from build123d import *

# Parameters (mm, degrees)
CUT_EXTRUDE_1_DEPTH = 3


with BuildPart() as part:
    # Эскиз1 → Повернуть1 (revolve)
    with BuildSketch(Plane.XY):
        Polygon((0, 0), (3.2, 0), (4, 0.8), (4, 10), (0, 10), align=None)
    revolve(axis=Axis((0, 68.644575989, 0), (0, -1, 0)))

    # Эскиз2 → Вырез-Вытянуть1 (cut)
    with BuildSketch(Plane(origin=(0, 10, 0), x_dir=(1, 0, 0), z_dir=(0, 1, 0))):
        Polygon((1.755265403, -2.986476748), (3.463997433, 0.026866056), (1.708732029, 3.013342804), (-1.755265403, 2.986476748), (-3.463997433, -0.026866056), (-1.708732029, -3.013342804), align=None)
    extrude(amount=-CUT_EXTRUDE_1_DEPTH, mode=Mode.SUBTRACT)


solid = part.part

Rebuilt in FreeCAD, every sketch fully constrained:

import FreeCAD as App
import Part
import Sketcher
from FreeCAD import Vector
Q = App.Units.Quantity


def add_polygon(sketch, points):
    """Adds a closed chain of lines whose ends are joined by coincident constraints."""
    first, n = sketch.GeometryCount, len(points)
    for a, b in zip(points, points[1:] + points[:1]):
        sketch.addGeometry(Part.LineSegment(App.Vector(*a, 0), App.Vector(*b, 0)), False)
    for i in range(n):
        sketch.addConstraint(Sketcher.Constraint("Coincident", first + i, 2, first + (i + 1) % n, 1))

doc = App.newDocument("Part")
body = doc.addObject("PartDesign::Body", "Body")

sketch1 = body.newObject("Sketcher::SketchObject", "Sketch")
sketch1.AttachmentSupport = (doc.getObject("XY_Plane"), [""])
sketch1.MapMode = "FlatFace"
add_polygon(sketch1, [(0, 0), (3.2, 0), (4, 0.8), (4, 10), (0, 10)])
sketch1.addConstraint(Sketcher.Constraint("Horizontal", 0))
sketch1.addConstraint(Sketcher.Constraint("Vertical", 2))
sketch1.addConstraint(Sketcher.Constraint("Horizontal", 3))
sketch1.addConstraint(Sketcher.Constraint("Vertical", 4))
sketch1.addConstraint(Sketcher.Constraint("Coincident", 4, 2, -1, 1))
sketch1.addConstraint(Sketcher.Constraint("DistanceX", 3, 2, 3, 1, 4.0))
sketch1.addConstraint(Sketcher.Constraint("DistanceY", 4, 2, 4, 1, 10.0))
sketch1.addConstraint(Sketcher.Constraint("Angle", 1, Q("45 deg")))
sketch1.addConstraint(Sketcher.Constraint("DistanceX", 0, 1, 0, 2, 3.2))
revolution = body.newObject("PartDesign::Revolution", "Revolution")
revolution.Profile = sketch1
revolution.ReferenceAxis = (sketch1, ["V_Axis"])
revolution.Angle = 360

sketch2 = body.newObject("Sketcher::SketchObject", "Sketch001")
sketch2.AttachmentSupport = (doc.getObject("XZ_Plane"), [""])
sketch2.MapMode = "FlatFace"
sketch2.AttachmentOffset = App.Placement(Vector(0, 0, -10), App.Rotation())
add_polygon(sketch2, [(1.755265, 2.986477), (3.463997, -0.026866), (1.708732, -3.013343), (-1.755265, -2.986477), (-3.463997, 0.026866), (-1.708732, 3.013343)])
sketch2.addConstraint(Sketcher.Constraint("Symmetric", 0, 2, 3, 2, -1, 1))
sketch2.addConstraint(Sketcher.Constraint("Symmetric", 1, 2, 4, 2, -1, 1))
sketch2.addConstraint(Sketcher.Constraint("Symmetric", 2, 2, 5, 2, -1, 1))
sketch2.addConstraint(Sketcher.Constraint("Equal", 0, 1))
sketch2.addConstraint(Sketcher.Constraint("Equal", 1, 2))
sketch2.addConstraint(Sketcher.Constraint("Distance", 0, 3.464102))
sketch2.addConstraint(Sketcher.Constraint("DistanceY", 2, 2, 0, 2, 2.959611))
sketch2.addConstraint(Sketcher.Constraint("DistanceX", 3, 2, 1, 2, 5.172729))
sketch2.addConstraint(Sketcher.Constraint("DistanceY", 1, 2, 3, 2, 3.040209))
pocket1 = body.newObject("PartDesign::Pocket", "Pocket")
pocket1.Profile = sketch2
pocket1.Length = 3
pocket1.Reversed = True

doc.recompute()
